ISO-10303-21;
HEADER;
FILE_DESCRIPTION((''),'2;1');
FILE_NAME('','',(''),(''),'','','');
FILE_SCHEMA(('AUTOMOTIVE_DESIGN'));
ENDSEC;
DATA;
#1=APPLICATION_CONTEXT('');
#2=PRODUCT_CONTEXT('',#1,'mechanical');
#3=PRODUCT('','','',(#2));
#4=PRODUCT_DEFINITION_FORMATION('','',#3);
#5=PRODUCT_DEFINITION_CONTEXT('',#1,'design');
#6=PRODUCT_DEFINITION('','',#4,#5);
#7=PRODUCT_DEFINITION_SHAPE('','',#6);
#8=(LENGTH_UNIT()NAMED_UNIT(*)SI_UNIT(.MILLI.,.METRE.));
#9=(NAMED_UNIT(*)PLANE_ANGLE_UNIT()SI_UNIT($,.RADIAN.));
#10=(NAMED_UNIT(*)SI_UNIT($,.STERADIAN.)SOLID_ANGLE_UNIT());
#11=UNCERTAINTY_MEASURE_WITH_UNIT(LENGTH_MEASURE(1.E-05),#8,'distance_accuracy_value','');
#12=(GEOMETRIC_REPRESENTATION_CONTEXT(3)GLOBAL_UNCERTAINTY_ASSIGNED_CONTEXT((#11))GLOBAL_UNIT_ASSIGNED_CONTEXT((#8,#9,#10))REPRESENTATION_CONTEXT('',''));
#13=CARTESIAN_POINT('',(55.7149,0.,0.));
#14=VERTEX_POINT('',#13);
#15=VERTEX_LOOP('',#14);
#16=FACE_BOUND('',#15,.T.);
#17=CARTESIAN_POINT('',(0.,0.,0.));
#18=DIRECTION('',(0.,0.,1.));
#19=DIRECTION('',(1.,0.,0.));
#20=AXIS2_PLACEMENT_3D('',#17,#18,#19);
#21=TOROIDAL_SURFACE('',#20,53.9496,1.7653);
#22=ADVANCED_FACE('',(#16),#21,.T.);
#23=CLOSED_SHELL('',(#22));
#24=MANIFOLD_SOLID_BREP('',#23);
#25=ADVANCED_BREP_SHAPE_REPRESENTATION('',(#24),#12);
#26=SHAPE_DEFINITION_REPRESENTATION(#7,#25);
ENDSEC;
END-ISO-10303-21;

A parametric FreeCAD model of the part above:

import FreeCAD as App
import Part
import Sketcher

V = App.Vector
Q = App.Units.Quantity

doc = App.newDocument("Part")
body = doc.addObject("PartDesign::Body", "Body")

# Sketch on XZ plane
sketch1 = body.newObject("Sketcher::SketchObject", "Sketch")
sketch1.AttachmentSupport = (doc.getObject("XZ_Plane"), [""])
sketch1.MapMode = "FlatFace"
sketch1.addGeometry(Part.Circle(V(-53.9496, 0, 0), V(0, 0, 1), 1.7653), False)
sketch1.addConstraint([
    Sketcher.Constraint("PointOnObject", 0, 3, -1),
    Sketcher.Constraint("Diameter", 0, Q("0.139 in")),
    Sketcher.Constraint("DistanceX", 0, 3, -1, 1, Q("2.124 in")),
])
revolution = body.newObject("PartDesign::Revolution", "Revolution")
revolution.Profile = sketch1
revolution.ReferenceAxis = (sketch1, ["V_Axis"])
revolution.Angle = 360

doc.recompute()
